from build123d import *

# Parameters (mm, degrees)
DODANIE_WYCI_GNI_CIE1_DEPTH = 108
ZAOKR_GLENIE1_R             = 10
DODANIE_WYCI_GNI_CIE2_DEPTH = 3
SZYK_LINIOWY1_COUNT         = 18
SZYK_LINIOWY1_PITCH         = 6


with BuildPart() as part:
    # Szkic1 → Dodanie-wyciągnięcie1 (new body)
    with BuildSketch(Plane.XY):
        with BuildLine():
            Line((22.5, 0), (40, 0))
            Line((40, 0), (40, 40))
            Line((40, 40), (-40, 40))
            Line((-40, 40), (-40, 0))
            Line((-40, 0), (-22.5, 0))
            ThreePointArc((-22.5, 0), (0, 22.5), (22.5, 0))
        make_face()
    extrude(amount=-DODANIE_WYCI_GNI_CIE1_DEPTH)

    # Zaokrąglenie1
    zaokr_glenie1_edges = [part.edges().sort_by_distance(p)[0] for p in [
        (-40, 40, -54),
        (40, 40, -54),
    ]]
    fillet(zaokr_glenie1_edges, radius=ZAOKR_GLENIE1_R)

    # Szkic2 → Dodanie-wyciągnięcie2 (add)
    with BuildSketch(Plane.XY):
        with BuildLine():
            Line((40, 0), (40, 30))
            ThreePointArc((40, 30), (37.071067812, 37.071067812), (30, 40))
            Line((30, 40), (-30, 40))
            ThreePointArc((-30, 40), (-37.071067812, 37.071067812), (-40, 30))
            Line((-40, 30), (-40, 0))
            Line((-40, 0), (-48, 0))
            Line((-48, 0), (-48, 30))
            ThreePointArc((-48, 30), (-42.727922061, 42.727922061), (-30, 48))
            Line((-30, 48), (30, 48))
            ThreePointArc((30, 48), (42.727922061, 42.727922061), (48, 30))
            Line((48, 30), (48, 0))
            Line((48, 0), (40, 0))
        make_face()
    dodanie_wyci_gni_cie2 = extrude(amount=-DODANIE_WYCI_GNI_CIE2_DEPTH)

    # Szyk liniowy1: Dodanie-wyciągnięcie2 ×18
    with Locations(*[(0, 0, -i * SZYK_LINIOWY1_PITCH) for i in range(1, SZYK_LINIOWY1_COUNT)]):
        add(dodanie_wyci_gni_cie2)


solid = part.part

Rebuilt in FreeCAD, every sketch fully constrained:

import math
import FreeCAD as App
import Part
import Sketcher

V = App.Vector


def edges_at(feature, points):
    """Names of the edges that pass closest to the given points."""
    edges = feature.Shape.Edges
    near = lambda p: min(range(len(edges)), key=lambda i: edges[i].distToShape(Part.Vertex(*p))[0])
    return sorted({f"Edge{near(p) + 1}" for p in points})

doc = App.newDocument("Part")
body = doc.addObject("PartDesign::Body", "Body")

# Sketch on XY plane
sketch1 = body.newObject("Sketcher::SketchObject", "Sketch")
sketch1.AttachmentSupport = (doc.getObject("XY_Plane"), [""])
sketch1.MapMode = "FlatFace"
sketch1.addGeometry(Part.LineSegment(V(22, 0, 0), V(40, 0, 0)), False)
sketch1.addGeometry(Part.LineSegment(V(40, 0, 0), V(40, 40, 0)), False)
sketch1.addGeometry(Part.LineSegment(V(40, 40, 0), V(-40, 40, 0)), False)
sketch1.addGeometry(Part.LineSegment(V(-40, 40, 0), V(-40, 0, 0)), False)
sketch1.addGeometry(Part.LineSegment(V(-40, 0, 0), V(-22, 0, 0)), False)
sketch1.addGeometry(Part.ArcOfCircle(Part.Circle(V(0, 0, 0), V(0, 0, 1), 22), math.radians(0), math.radians(180)), False)
sketch1.addConstraint(Sketcher.Constraint("Coincident", 0, 2, 1, 1))
sketch1.addConstraint(Sketcher.Constraint("Coincident", 1, 2, 2, 1))
sketch1.addConstraint(Sketcher.Constraint("Coincident", 2, 2, 3, 1))
sketch1.addConstraint(Sketcher.Constraint("Coincident", 3, 2, 4, 1))
sketch1.addConstraint(Sketcher.Constraint("Coincident", 4, 2, 5, 2))
sketch1.addConstraint(Sketcher.Constraint("Coincident", 5, 1, 0, 1))
sketch1.addConstraint(Sketcher.Constraint("Horizontal", 0))
sketch1.addConstraint(Sketcher.Constraint("Vertical", 1))
sketch1.addConstraint(Sketcher.Constraint("Horizontal", 2))
sketch1.addConstraint(Sketcher.Constraint("Vertical", 3))
sketch1.addConstraint(Sketcher.Constraint("Horizontal", 4))
sketch1.addConstraint(Sketcher.Constraint("Coincident", 5, 3, -1, 1))
sketch1.addConstraint(Sketcher.Constraint("Symmetric", 0, 2, 3, 2, -1, 1))
sketch1.addConstraint(Sketcher.Constraint("PointOnObject", 0, 2, -1))
sketch1.addConstraint(Sketcher.Constraint("Radius", 5, 22.5))
sketch1.addConstraint(Sketcher.Constraint("DistanceX", 2, 2, 2, 1, 80.0))
sketch1.addConstraint(Sketcher.Constraint("DistanceY", 1, 1, 1, 2, 40.0))
pad1 = body.newObject("PartDesign::Pad", "Pad")
pad1.Profile = sketch1
pad1.Length = 108
pad1.Reversed = True
doc.recompute()

fillet = body.newObject("PartDesign::Fillet", "Fillet")
fillet.Base = (pad1, edges_at(pad1, [(-40, 40, -54), (40, 40, -54)]))
fillet.Radius = 10

# Sketch on XY plane
sketch2 = body.newObject("Sketcher::SketchObject", "Sketch001")
sketch2.AttachmentSupport = (doc.getObject("XY_Plane"), [""])
sketch2.MapMode = "FlatFace"
sketch2.addGeometry(Part.LineSegment(V(40, 30, 0), V(40, 0, 0)), False)
sketch2.addGeometry(Part.LineSegment(V(40, 0, 0), V(48, 0, 0)), False)
sketch2.addGeometry(Part.LineSegment(V(48, 0, 0), V(48, 30, 0)), False)
sketch2.addGeometry(Part.ArcOfCircle(Part.Circle(V(30, 30, 0), V(0, 0, 1), 18), math.radians(0), math.radians(90)), False)
sketch2.addGeometry(Part.LineSegment(V(30, 48, 0), V(-30, 48, 0)), False)
sketch2.addGeometry(Part.ArcOfCircle(Part.Circle(V(-30, 30, 0), V(0, 0, 1), 18), math.radians(90), math.radians(180)), False)
sketch2.addGeometry(Part.LineSegment(V(-48, 30, 0), V(-48, 0, 0)), False)
sketch2.addGeometry(Part.LineSegment(V(-48, 0, 0), V(-40, 0, 0)), False)
sketch2.addGeometry(Part.LineSegment(V(-40, 0, 0), V(-40, 30, 0)), False)
sketch2.addGeometry(Part.ArcOfCircle(Part.Circle(V(-30, 30, 0), V(0, 0, 1), 10), math.radians(90), math.radians(180)), False)
sketch2.addGeometry(Part.LineSegment(V(-30, 40, 0), V(30, 40, 0)), False)
sketch2.addGeometry(Part.ArcOfCircle(Part.Circle(V(30, 30, 0), V(0, 0, 1), 10), math.radians(0), math.radians(90)), False)
sketch2.addConstraint(Sketcher.Constraint("Coincident", 0, 2, 1, 1))
sketch2.addConstraint(Sketcher.Constraint("Coincident", 1, 2, 2, 1))
sketch2.addConstraint(Sketcher.Constraint("Tangent", 2, 2, 3, 1))
sketch2.addConstraint(Sketcher.Constraint("Tangent", 3, 2, 4, 1))
sketch2.addConstraint(Sketcher.Constraint("Tangent", 4, 2, 5, 1))
sketch2.addConstraint(Sketcher.Constraint("Tangent", 5, 2, 6, 1))
sketch2.addConstraint(Sketcher.Constraint("Coincident", 6, 2, 7, 1))
sketch2.addConstraint(Sketcher.Constraint("Coincident", 7, 2, 8, 1))
sketch2.addConstraint(Sketcher.Constraint("Tangent", 8, 2, 9, 2))
sketch2.addConstraint(Sketcher.Constraint("Tangent", 9, 1, 10, 1))
sketch2.addConstraint(Sketcher.Constraint("Tangent", 10, 2, 11, 2))
sketch2.addConstraint(Sketcher.Constraint("Tangent", 11, 1, 0, 1))
sketch2.addConstraint(Sketcher.Constraint("Vertical", 0))
sketch2.addConstraint(Sketcher.Constraint("Horizontal", 1))
sketch2.addConstraint(Sketcher.Constraint("Vertical", 2))
sketch2.addConstraint(Sketcher.Constraint("Horizontal", 4))
sketch2.addConstraint(Sketcher.Constraint("Vertical", 6))
sketch2.addConstraint(Sketcher.Constraint("Horizontal", 7))
sketch2.addConstraint(Sketcher.Constraint("Vertical", 8))
sketch2.addConstraint(Sketcher.Constraint("Horizontal", 10))
sketch2.addConstraint(Sketcher.Constraint("Coincident", 9, 3, 5, 3))
sketch2.addConstraint(Sketcher.Constraint("Coincident", 11, 3, 3, 3))
sketch2.addConstraint(Sketcher.Constraint("Equal", 3, 5))
sketch2.addConstraint(Sketcher.Constraint("Symmetric", 1, 2, 6, 2, -1, 1))
sketch2.addConstraint(Sketcher.Constraint("PointOnObject", 0, 2, -1))
sketch2.addConstraint(Sketcher.Constraint("Radius", 3, 18.0))
sketch2.addConstraint(Sketcher.Constraint("Radius", 9, 10.0))
sketch2.addConstraint(Sketcher.Constraint("DistanceX", 4, 2, 4, 1, 60.0))
sketch2.addConstraint(Sketcher.Constraint("DistanceY", 0, 2, 0, 1, 30.0))
pad2 = body.newObject("PartDesign::Pad", "Pad001")
pad2.Profile = sketch2
pad2.Length = 3
pad2.Reversed = True
doc.recompute()

linearpattern = body.newObject("PartDesign::LinearPattern", "LinearPattern")
linearpattern.Originals = [pad2]
linearpattern.Direction = (doc.getObject("Z_Axis"), [""])
linearpattern.Mode = "offset"
linearpattern.Offset = 6
linearpattern.Occurrences = 18
linearpattern.Reversed = True
body.Tip = linearpattern

doc.recompute()
